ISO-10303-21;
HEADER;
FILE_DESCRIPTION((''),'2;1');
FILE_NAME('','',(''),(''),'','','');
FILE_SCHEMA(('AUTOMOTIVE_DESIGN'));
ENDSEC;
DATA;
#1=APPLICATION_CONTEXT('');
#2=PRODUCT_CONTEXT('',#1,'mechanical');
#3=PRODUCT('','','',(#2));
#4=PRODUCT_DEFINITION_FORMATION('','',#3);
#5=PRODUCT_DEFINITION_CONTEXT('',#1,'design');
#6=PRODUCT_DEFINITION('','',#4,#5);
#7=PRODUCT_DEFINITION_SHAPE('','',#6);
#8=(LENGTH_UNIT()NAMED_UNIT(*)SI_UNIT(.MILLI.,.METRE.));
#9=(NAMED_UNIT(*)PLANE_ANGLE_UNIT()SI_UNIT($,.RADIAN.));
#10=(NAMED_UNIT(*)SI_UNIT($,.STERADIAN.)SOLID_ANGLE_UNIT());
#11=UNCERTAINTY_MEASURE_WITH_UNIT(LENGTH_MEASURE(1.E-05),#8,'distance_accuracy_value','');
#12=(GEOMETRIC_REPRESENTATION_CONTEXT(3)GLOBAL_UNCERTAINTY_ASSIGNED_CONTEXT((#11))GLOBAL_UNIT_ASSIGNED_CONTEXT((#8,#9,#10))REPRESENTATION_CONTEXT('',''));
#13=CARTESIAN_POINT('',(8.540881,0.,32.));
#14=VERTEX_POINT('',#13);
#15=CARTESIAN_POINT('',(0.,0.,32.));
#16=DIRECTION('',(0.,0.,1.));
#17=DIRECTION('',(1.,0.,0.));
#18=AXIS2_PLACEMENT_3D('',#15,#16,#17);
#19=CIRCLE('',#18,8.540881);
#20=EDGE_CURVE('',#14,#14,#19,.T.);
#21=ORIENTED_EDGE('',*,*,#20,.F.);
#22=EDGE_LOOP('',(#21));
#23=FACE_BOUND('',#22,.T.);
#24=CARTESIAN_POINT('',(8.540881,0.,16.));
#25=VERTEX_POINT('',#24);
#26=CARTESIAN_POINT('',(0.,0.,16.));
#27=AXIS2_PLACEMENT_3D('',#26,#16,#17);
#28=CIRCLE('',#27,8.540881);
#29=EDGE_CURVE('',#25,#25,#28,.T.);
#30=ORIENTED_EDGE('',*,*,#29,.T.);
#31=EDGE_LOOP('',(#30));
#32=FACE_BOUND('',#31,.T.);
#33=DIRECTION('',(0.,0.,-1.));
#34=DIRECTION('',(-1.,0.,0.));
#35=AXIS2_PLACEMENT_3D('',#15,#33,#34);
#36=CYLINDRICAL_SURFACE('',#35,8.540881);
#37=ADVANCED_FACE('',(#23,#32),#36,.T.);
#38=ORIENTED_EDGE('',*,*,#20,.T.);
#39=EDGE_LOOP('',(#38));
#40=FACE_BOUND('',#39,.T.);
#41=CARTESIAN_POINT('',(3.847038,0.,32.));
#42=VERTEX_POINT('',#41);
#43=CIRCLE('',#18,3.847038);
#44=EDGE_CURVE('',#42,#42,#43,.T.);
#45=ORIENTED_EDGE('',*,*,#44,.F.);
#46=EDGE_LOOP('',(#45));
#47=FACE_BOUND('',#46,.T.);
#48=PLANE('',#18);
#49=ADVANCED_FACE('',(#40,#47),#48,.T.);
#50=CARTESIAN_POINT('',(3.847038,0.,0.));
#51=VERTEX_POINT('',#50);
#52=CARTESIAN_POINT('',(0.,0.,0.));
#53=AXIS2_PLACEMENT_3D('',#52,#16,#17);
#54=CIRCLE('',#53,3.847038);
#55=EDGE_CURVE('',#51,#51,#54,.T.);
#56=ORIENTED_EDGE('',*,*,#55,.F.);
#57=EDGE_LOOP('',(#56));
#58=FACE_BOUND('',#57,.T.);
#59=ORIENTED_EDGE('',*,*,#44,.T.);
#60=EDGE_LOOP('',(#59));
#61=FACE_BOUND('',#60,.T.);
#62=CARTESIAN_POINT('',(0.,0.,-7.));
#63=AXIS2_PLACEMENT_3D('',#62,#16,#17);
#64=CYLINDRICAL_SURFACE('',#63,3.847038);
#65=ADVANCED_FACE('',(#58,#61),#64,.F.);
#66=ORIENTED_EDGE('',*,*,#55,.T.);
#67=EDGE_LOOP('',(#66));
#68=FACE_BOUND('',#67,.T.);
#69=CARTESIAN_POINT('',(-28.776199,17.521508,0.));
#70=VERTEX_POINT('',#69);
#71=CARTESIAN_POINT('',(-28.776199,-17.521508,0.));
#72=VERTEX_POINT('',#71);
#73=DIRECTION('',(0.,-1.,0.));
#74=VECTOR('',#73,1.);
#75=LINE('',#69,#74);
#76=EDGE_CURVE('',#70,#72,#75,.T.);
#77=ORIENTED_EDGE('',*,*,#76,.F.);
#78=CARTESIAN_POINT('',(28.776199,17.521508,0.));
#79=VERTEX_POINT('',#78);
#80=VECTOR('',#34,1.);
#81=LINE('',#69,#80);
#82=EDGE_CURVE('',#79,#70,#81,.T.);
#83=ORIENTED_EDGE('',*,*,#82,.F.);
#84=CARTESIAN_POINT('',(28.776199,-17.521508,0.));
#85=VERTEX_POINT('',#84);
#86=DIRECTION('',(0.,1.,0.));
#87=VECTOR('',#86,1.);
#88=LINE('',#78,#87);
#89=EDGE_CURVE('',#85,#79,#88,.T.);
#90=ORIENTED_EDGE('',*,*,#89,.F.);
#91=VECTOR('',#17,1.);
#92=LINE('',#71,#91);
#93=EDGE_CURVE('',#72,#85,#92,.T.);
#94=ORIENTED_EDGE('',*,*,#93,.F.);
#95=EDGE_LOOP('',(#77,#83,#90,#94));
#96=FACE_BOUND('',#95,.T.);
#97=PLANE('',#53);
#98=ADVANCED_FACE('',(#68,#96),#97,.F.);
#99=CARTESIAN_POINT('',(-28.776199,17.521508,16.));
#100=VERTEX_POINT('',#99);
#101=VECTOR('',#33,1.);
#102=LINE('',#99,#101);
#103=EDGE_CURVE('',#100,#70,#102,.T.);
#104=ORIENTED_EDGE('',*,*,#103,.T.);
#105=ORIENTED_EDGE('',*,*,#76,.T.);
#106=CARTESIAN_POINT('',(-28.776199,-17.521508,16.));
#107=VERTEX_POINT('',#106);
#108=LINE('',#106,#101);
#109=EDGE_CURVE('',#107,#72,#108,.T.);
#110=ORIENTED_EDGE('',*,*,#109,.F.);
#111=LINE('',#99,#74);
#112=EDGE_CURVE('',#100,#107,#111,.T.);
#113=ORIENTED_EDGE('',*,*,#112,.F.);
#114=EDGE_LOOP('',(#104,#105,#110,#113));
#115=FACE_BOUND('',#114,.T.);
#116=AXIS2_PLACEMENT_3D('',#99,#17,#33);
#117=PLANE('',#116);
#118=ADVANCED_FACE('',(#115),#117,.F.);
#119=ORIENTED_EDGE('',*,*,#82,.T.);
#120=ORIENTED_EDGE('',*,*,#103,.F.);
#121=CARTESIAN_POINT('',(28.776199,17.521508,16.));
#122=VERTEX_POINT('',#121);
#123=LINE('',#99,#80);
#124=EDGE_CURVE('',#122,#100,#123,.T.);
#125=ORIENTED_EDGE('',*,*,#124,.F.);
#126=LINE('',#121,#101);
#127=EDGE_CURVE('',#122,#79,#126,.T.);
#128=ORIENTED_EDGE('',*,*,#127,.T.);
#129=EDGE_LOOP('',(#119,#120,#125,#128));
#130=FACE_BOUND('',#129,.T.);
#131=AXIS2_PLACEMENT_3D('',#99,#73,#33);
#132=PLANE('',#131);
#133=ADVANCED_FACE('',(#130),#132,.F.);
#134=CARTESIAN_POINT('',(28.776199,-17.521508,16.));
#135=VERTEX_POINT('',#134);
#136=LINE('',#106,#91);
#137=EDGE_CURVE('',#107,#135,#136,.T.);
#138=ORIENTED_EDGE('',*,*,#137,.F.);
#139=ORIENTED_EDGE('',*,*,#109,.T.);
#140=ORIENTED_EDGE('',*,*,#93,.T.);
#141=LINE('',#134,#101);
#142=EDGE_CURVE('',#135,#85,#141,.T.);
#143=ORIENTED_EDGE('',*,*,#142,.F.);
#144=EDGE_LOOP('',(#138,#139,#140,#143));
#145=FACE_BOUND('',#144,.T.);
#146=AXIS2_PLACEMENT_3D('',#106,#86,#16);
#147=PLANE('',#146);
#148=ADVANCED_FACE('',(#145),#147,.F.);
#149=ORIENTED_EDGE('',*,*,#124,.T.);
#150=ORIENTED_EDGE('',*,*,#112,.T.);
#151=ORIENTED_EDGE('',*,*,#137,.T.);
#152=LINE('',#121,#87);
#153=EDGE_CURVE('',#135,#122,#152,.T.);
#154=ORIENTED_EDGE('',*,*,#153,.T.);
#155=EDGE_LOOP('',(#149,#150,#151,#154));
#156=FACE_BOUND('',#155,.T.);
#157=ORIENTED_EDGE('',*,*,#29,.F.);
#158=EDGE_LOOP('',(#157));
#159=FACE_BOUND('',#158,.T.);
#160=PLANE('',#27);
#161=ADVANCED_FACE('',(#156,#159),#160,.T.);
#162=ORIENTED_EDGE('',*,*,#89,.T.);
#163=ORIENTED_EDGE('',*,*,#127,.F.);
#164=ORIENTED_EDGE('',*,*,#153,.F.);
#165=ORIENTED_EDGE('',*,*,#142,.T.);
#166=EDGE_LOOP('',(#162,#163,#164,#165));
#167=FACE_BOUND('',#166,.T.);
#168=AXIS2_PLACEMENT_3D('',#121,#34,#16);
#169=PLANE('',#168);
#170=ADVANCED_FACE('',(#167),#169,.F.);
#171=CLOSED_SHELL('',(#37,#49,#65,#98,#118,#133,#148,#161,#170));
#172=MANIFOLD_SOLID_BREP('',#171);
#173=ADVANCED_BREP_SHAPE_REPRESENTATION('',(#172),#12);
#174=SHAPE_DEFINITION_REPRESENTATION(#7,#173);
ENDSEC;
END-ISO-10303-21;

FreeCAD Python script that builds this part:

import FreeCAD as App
import Part
import Sketcher

V = App.Vector

doc = App.newDocument("Part")
body = doc.addObject("PartDesign::Body", "Body")

sketch1 = doc.addObject("Sketcher::SketchObject", "Sketch")
body.addObject(sketch1)
sketch1.AttachmentSupport = (doc.XY_Plane, [""])
sketch1.MapMode = "FlatFace"
sketch1.addGeometry([
    Part.LineSegment(V(-29, 18, 0), V(-29, -18, 0)),
    Part.LineSegment(V(-29, -18, 0), V(29, -18, 0)),
    Part.LineSegment(V(29, -18, 0), V(29, 18, 0)),
    Part.LineSegment(V(29, 18, 0), V(-29, 18, 0)),
], False)
sketch1.addConstraint([
    Sketcher.Constraint("Coincident", 0, 2, 1, 1),
    Sketcher.Constraint("Coincident", 1, 2, 2, 1),
    Sketcher.Constraint("Coincident", 2, 2, 3, 1),
    Sketcher.Constraint("Coincident", 3, 2, 0, 1),
    Sketcher.Constraint("Vertical", 0),
    Sketcher.Constraint("Horizontal", 1),
    Sketcher.Constraint("Vertical", 2),
    Sketcher.Constraint("Horizontal", 3),
    Sketcher.Constraint("Symmetric", 0, 2, 2, 2, -1, 1),
    Sketcher.Constraint("DistanceX", 1, 1, 1, 2, 57.552399),
    Sketcher.Constraint("DistanceY", 0, 2, 0, 1, 35.043016),
])
pad1 = doc.addObject("PartDesign::Pad", "Pad")
body.addObject(pad1)
pad1.Profile = sketch1
pad1.Length = 16

sketch2 = doc.addObject("Sketcher::SketchObject", "Sketch001")
body.addObject(sketch2)
sketch2.AttachmentSupport = (doc.XY_Plane, [""])
sketch2.MapMode = "FlatFace"
sketch2.AttachmentOffset = App.Placement(V(0, 0, 16), App.Rotation())
sketch2.addGeometry(Part.Circle(V(0, 0, 0), V(0, 0, 1), 9), False)
sketch2.addConstraint([
    Sketcher.Constraint("Coincident", 0, 3, -1, 1),
    Sketcher.Constraint("Diameter", 0, 17.081762),
])
pad2 = doc.addObject("PartDesign::Pad", "Pad001")
body.addObject(pad2)
pad2.Profile = sketch2
pad2.Length = 16

sketch3 = doc.addObject("Sketcher::SketchObject", "Sketch002")
body.addObject(sketch3)
sketch3.AttachmentSupport = (doc.XY_Plane, [""])
sketch3.MapMode = "FlatFace"
sketch3.AttachmentOffset = App.Placement(V(0, 0, 32), App.Rotation())
sketch3.addGeometry(Part.Circle(V(0, 0, 0), V(0, 0, 1), 3.8), False)
sketch3.addConstraint([
    Sketcher.Constraint("Coincident", 0, 3, -1, 1),
    Sketcher.Constraint("Diameter", 0, 7.694076),
])
pocket1 = doc.addObject("PartDesign::Pocket", "Pocket")
body.addObject(pocket1)
pocket1.Profile = sketch3
pocket1.Length = 39

doc.recompute()
